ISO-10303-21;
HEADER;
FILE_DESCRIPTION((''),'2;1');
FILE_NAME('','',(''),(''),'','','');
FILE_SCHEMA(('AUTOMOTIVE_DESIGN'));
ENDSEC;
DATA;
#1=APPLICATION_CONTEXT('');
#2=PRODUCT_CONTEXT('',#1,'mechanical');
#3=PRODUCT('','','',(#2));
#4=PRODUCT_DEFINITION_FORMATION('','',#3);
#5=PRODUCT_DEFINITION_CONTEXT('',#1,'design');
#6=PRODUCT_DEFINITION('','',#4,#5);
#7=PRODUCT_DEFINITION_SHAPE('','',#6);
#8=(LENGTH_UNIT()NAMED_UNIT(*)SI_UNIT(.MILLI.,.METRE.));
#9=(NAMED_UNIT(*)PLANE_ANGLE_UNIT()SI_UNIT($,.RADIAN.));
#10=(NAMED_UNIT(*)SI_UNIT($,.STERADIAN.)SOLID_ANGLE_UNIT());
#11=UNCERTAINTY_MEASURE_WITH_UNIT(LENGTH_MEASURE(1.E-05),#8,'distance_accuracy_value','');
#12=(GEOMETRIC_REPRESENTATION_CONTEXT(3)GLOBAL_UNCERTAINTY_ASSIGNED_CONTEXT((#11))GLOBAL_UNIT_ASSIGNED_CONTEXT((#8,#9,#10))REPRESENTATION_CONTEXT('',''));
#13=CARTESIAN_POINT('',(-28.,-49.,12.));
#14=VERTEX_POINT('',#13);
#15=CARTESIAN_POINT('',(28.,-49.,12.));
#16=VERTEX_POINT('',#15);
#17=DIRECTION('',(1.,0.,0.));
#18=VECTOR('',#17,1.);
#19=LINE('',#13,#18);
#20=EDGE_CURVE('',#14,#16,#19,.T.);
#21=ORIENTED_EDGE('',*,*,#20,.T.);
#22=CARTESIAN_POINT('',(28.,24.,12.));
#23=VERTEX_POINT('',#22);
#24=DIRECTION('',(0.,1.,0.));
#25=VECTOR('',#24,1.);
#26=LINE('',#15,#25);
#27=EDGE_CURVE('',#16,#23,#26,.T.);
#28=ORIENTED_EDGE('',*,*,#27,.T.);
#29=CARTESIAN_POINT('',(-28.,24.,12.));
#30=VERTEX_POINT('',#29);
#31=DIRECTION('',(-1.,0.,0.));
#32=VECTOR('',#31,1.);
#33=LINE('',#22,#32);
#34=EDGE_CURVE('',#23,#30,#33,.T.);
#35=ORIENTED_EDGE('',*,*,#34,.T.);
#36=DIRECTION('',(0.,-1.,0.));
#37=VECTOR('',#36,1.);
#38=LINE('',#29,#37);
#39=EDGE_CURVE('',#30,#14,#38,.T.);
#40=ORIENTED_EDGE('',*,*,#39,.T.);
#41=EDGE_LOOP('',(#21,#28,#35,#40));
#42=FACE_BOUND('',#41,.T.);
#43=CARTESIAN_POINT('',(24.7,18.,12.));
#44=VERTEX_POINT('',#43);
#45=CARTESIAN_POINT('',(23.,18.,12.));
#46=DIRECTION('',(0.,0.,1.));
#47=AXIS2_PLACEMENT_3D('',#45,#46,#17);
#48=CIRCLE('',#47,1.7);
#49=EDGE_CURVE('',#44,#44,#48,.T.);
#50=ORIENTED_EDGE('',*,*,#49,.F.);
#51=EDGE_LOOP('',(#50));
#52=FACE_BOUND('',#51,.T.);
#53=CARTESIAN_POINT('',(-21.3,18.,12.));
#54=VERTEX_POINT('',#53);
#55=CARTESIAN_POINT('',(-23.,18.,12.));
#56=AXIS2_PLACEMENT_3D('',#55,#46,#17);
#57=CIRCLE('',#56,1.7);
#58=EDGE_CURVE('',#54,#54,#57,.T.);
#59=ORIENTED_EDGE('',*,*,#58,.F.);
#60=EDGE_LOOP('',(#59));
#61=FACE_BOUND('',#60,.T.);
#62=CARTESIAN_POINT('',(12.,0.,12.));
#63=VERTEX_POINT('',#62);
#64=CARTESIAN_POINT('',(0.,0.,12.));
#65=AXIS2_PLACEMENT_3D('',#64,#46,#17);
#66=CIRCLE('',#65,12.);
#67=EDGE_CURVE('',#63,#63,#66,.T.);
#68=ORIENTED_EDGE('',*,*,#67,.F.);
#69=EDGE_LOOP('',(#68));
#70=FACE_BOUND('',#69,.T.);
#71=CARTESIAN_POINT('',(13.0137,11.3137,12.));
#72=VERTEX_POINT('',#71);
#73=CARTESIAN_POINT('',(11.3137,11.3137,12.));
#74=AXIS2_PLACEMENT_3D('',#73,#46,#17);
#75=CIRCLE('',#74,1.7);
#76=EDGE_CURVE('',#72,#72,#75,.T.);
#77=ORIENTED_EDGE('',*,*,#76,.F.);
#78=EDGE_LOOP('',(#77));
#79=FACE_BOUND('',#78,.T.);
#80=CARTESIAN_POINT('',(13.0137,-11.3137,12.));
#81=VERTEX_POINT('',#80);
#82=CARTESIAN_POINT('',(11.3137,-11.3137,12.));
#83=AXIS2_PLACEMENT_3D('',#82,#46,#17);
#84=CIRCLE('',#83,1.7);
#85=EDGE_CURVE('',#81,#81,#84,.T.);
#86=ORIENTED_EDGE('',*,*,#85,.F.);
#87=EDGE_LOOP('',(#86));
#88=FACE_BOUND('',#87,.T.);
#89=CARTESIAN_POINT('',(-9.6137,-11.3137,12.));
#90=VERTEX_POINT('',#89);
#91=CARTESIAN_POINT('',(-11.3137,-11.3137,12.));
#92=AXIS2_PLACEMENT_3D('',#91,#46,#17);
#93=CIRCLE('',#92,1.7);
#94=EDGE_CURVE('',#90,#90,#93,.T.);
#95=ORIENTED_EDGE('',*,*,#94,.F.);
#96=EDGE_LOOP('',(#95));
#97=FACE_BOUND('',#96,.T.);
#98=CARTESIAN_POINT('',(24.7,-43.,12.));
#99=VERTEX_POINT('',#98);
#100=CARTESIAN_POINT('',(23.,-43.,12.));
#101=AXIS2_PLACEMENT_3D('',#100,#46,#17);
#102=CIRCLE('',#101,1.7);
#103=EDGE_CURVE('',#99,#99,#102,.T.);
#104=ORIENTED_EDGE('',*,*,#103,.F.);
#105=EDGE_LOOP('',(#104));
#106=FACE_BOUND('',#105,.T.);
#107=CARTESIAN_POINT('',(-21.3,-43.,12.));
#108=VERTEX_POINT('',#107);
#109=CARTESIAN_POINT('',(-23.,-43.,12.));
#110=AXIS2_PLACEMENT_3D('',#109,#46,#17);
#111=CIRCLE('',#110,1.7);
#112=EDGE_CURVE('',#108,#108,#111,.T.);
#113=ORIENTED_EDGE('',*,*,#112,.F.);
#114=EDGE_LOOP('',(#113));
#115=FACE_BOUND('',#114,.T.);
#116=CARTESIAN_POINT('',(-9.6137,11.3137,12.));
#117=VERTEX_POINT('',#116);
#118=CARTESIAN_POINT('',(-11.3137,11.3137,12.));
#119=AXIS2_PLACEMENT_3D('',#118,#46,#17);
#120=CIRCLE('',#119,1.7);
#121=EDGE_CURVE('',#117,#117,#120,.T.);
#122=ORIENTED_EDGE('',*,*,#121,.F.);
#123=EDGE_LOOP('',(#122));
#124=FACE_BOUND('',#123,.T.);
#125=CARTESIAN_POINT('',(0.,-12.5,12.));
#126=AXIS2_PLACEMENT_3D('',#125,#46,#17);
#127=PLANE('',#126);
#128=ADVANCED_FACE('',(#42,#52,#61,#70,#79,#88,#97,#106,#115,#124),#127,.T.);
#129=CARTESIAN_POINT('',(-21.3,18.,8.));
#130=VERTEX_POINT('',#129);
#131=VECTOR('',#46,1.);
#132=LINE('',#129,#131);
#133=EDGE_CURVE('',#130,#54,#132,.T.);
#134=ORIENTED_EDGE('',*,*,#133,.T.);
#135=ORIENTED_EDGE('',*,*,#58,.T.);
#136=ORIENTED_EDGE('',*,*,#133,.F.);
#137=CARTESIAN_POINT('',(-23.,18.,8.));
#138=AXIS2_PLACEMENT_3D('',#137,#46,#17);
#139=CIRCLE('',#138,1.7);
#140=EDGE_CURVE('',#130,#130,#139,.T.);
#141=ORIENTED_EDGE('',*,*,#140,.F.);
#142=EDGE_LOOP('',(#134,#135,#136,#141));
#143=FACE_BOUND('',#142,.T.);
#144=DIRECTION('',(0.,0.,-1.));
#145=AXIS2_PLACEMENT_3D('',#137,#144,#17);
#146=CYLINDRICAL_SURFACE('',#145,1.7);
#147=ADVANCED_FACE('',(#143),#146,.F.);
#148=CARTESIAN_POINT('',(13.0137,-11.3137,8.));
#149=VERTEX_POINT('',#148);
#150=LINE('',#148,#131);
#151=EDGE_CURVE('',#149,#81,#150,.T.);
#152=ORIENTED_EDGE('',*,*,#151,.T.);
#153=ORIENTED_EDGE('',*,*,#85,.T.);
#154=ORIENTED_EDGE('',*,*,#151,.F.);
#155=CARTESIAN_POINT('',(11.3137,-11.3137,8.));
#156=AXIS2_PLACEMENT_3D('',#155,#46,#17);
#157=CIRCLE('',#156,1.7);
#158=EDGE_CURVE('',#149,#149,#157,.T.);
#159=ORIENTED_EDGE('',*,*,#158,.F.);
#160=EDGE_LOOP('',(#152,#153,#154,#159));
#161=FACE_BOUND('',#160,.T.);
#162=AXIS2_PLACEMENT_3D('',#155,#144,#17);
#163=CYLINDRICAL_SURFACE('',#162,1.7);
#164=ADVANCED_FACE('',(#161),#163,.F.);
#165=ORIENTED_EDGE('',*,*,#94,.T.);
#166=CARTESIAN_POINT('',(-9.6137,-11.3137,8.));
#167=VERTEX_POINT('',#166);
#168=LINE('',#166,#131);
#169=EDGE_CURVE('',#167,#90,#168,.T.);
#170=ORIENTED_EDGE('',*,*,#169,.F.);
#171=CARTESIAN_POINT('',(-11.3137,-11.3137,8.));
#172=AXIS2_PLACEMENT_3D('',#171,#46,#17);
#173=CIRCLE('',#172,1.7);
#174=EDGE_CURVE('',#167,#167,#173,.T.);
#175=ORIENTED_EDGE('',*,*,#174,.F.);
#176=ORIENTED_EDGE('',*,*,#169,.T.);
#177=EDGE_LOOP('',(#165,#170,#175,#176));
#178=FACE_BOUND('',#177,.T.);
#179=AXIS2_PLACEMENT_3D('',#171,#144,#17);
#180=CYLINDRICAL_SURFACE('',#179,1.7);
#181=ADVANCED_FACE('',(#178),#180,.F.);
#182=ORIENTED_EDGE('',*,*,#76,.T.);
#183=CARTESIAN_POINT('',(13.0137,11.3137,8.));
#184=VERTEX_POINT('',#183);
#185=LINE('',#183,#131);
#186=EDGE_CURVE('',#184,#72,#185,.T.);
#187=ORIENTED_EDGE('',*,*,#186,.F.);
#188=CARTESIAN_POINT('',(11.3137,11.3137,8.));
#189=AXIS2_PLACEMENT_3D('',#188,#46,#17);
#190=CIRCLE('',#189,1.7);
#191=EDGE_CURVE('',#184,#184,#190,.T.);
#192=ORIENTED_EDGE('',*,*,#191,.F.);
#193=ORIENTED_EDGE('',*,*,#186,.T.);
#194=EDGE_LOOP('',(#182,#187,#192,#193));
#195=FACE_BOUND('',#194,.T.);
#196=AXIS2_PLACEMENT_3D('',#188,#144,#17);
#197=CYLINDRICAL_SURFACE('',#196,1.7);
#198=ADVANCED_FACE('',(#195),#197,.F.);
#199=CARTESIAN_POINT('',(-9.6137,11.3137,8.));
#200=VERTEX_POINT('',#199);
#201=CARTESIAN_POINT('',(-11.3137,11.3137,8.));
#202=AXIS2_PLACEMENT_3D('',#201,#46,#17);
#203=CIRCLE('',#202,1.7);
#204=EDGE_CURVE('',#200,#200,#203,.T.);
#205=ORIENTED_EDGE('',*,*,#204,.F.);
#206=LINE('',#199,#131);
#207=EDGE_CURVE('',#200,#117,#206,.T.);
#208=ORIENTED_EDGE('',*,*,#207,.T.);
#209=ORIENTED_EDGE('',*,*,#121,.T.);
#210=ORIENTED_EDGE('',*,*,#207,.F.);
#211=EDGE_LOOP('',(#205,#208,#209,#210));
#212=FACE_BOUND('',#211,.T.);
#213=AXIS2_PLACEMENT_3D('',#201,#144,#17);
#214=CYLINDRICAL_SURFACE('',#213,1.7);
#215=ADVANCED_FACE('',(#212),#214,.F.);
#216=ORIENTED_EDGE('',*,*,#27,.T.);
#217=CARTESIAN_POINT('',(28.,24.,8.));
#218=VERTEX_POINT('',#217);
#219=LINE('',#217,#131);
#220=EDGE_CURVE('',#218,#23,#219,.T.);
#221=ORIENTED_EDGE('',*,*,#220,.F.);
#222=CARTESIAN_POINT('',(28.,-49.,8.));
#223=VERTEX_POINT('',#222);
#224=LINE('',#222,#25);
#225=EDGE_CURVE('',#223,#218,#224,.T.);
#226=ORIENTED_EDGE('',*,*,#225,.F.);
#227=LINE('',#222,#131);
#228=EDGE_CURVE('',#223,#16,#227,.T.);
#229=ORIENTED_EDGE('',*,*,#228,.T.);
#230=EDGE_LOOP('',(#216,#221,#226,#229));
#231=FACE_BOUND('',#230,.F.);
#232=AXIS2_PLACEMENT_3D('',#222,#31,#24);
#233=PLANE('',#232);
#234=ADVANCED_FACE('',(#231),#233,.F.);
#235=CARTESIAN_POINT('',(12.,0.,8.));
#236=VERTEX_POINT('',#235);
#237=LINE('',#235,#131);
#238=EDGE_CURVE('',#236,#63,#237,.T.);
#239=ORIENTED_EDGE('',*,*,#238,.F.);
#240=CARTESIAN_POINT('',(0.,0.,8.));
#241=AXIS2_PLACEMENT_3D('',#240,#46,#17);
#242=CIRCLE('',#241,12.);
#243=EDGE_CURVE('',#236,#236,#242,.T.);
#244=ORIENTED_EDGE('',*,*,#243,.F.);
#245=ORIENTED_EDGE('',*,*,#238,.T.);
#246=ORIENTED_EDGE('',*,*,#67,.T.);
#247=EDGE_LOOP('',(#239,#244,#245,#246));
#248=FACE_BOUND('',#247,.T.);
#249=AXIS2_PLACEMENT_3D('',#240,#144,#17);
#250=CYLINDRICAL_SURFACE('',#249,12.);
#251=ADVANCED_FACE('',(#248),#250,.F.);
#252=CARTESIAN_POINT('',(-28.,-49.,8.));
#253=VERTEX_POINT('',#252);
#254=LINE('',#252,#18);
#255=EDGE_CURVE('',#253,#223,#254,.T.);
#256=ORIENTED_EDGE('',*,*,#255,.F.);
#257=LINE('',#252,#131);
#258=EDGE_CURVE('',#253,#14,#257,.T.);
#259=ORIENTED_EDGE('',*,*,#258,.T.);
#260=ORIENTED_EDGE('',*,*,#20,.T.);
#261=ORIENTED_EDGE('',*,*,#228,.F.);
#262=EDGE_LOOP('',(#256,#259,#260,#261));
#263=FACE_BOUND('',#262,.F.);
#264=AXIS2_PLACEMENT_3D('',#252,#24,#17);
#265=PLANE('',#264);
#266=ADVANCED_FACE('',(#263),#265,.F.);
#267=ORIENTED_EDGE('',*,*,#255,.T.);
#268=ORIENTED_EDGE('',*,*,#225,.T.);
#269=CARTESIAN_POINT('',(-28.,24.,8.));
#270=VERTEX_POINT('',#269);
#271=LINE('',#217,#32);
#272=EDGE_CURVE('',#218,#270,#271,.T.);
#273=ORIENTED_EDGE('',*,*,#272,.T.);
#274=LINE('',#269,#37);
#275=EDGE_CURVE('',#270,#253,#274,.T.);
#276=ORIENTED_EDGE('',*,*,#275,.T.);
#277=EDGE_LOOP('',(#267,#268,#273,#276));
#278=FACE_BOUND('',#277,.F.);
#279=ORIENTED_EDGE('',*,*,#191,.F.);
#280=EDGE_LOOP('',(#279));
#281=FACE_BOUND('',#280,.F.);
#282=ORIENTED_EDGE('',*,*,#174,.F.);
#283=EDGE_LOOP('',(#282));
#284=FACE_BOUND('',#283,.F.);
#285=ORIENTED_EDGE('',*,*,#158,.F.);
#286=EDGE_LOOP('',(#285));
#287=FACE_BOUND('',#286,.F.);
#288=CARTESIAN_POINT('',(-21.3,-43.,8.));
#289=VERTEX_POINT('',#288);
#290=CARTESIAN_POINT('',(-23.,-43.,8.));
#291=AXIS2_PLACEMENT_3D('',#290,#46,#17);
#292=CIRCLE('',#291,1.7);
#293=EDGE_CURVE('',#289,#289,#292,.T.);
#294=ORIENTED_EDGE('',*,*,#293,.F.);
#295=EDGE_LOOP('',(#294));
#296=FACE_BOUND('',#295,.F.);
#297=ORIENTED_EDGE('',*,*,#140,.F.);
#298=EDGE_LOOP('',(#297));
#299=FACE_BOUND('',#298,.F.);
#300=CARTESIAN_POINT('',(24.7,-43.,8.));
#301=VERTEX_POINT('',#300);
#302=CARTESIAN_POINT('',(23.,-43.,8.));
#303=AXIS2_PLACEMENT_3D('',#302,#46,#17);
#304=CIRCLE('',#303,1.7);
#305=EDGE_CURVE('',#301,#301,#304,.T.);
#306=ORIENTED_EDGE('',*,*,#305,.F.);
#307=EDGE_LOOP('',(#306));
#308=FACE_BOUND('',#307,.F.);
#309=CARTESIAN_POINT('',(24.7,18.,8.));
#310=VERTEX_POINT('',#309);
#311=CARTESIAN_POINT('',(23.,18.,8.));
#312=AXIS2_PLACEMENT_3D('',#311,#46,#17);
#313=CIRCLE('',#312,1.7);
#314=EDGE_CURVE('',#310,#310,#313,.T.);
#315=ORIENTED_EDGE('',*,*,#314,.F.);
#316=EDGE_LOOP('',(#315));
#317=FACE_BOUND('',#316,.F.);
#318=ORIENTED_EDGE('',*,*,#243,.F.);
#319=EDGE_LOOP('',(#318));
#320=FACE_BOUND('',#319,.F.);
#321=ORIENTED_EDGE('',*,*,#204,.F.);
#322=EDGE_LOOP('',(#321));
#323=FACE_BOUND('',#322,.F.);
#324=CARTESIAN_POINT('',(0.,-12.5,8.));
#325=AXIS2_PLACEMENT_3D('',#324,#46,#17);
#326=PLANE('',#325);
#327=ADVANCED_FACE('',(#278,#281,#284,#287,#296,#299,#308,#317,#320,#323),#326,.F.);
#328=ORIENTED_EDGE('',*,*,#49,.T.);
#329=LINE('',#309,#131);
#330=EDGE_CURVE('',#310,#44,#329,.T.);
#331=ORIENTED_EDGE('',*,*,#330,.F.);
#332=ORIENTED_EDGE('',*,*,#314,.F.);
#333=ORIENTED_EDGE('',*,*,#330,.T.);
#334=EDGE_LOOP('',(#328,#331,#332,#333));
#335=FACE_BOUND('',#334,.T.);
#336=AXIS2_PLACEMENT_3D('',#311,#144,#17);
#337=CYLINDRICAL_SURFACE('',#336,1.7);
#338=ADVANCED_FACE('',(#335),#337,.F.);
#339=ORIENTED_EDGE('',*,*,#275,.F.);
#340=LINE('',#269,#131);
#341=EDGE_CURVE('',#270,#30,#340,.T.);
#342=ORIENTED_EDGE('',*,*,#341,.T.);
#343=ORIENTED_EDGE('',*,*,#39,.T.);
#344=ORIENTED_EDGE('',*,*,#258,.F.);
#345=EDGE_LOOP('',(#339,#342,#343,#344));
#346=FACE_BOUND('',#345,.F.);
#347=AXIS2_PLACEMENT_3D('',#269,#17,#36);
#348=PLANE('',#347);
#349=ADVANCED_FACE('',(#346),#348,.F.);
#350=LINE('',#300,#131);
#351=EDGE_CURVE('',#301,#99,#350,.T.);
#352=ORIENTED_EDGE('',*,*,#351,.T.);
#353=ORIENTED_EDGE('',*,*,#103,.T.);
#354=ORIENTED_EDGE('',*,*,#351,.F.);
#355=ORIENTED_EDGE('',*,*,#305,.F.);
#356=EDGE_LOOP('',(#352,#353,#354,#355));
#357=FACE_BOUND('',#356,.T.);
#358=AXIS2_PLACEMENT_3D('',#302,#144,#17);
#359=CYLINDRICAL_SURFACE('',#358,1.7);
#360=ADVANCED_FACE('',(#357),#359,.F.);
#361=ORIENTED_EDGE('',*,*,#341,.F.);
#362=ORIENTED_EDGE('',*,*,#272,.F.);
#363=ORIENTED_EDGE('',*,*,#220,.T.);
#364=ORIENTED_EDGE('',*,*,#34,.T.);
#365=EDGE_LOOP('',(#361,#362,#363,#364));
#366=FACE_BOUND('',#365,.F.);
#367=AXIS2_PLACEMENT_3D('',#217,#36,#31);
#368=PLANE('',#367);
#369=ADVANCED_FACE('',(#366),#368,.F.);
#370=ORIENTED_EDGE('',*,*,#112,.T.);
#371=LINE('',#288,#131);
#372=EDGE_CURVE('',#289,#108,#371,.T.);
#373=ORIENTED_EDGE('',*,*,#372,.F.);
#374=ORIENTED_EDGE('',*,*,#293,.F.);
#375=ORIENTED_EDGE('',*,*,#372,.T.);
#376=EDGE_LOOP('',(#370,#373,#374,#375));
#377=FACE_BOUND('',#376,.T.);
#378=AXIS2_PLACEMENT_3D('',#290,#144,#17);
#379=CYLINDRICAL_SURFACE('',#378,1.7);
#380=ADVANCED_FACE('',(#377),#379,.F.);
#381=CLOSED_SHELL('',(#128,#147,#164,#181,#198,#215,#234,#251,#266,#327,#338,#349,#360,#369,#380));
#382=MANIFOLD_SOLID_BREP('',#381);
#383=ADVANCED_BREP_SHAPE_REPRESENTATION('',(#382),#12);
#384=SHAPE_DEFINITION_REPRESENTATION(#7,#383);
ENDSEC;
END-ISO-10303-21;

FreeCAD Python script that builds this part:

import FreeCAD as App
import Part
import Sketcher
Q = App.Units.Quantity


def add_polygon(sketch, points):
    """Adds a closed chain of lines whose ends are joined by coincident constraints."""
    first, n = sketch.GeometryCount, len(points)
    for a, b in zip(points, points[1:] + points[:1]):
        sketch.addGeometry(Part.LineSegment(App.Vector(*a, 0), App.Vector(*b, 0)), False)
    for i in range(n):
        sketch.addConstraint(Sketcher.Constraint("Coincident", first + i, 2, first + (i + 1) % n, 1))

doc = App.newDocument("Part")
body = doc.addObject("PartDesign::Body", "Body")

# Sketch on XY plane
sketch1 = body.newObject("Sketcher::SketchObject", "Sketch")
sketch1.AttachmentSupport = (doc.getObject("XY_Plane"), [""])
sketch1.MapMode = "FlatFace"
sketch1.AttachmentOffset = App.Placement(App.Vector(0, 0, 8), App.Rotation())
add_polygon(sketch1, [(-28, 24), (-28, -49), (28, -49), (28, 24)])  # lines 0-3
sketch1.addGeometry(Part.Circle(App.Vector(-23, -43, 0), App.Vector(0, 0, 1), 1.7), False)  # 4
sketch1.addGeometry(Part.Circle(App.Vector(23, -43, 0), App.Vector(0, 0, 1), 1.7), False)  # 5
sketch1.addGeometry(Part.Circle(App.Vector(-11.3, -11.3, 0), App.Vector(0, 0, 1), 1.7), False)  # 6
sketch1.addGeometry(Part.Circle(App.Vector(-23, 18, 0), App.Vector(0, 0, 1), 1.7), False)  # 7
sketch1.addGeometry(Part.Circle(App.Vector(-11.3, 11.3, 0), App.Vector(0, 0, 1), 1.7), False)  # 8
sketch1.addGeometry(Part.Circle(App.Vector(11.3, -11.3, 0), App.Vector(0, 0, 1), 1.7), False)  # 9
sketch1.addGeometry(Part.Circle(App.Vector(0, 0, 0), App.Vector(0, 0, 1), 12), False)  # 10
sketch1.addGeometry(Part.Circle(App.Vector(11.3, 11.3, 0), App.Vector(0, 0, 1), 1.7), False)  # 11
sketch1.addGeometry(Part.Circle(App.Vector(23, 18, 0), App.Vector(0, 0, 1), 1.7), False)  # 12
sketch1.addConstraint([
    Sketcher.Constraint("Vertical", 0),
    Sketcher.Constraint("Horizontal", 1),
    Sketcher.Constraint("Vertical", 2),
    Sketcher.Constraint("Horizontal", 3),
    Sketcher.Constraint("Coincident", 10, 3, -1, 1),
    Sketcher.Constraint("Equal", 4, 5),
    Sketcher.Constraint("Equal", 5, 6),
    Sketcher.Constraint("Equal", 6, 7),
    Sketcher.Constraint("Equal", 7, 8),
    Sketcher.Constraint("Equal", 8, 9),
    Sketcher.Constraint("Equal", 9, 11),
    Sketcher.Constraint("Equal", 11, 12),
    Sketcher.Constraint("Symmetric", 8, 3, 9, 3, -1, 1),
    Sketcher.Constraint("Symmetric", 6, 3, 11, 3, -1, 1),
    Sketcher.Constraint("Symmetric", 4, 3, 5, 3, -2),
    Sketcher.Constraint("Symmetric", 6, 3, 9, 3, -2),
    Sketcher.Constraint("Symmetric", 7, 3, 12, 3, -2),
    Sketcher.Constraint("Vertical", 4, 3, 7, 3),
    Sketcher.Constraint("Diameter", 10, Q("24 mm")),
    Sketcher.Constraint("Diameter", 4, Q("3.4 mm")),
    Sketcher.Constraint("DistanceX", 1, 1, 1, 2, Q("56 mm")),
    Sketcher.Constraint("DistanceY", 0, 2, 0, 1, Q("73 mm")),
    Sketcher.Constraint("DistanceX", 4, 3, -1, 1, Q("23 mm")),
    Sketcher.Constraint("DistanceY", 4, 3, -1, 1, Q("43 mm")),
    Sketcher.Constraint("DistanceY", -1, 1, 7, 3, Q("18 mm")),
    Sketcher.Constraint("DistanceX", 0, 2, -1, 1, Q("28 mm")),
    Sketcher.Constraint("DistanceY", 0, 2, -1, 1, Q("49 mm")),
    Sketcher.Constraint("DistanceX", 6, 3, -1, 1, Q("11.3137 mm")),
    Sketcher.Constraint("DistanceY", 6, 3, -1, 1, Q("11.3137 mm")),
])
pad1 = body.newObject("PartDesign::Pad", "Pad")
pad1.Profile = sketch1
pad1.Length = 4

doc.recompute()
